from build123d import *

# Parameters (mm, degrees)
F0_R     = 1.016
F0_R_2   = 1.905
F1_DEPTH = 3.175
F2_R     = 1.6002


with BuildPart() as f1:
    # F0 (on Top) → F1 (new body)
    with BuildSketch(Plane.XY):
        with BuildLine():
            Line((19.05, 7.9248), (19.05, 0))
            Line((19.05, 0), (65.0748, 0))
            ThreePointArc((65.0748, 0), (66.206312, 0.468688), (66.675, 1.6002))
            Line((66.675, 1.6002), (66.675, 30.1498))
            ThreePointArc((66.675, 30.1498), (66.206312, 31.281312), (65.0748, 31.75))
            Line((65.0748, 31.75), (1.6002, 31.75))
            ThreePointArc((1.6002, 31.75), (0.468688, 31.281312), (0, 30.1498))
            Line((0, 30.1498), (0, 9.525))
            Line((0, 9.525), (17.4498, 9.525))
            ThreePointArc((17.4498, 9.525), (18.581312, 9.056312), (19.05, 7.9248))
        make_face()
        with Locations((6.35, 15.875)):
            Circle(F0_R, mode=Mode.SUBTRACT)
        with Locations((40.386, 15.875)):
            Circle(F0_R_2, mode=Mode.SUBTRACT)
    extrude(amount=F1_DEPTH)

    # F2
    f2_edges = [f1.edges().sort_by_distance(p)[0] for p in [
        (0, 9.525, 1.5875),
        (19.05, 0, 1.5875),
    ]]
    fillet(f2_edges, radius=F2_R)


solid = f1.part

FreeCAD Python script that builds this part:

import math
import FreeCAD as App
import Part
import Sketcher
Q = App.Units.Quantity


def edges_at(feature, points):
    """Names of the edges that pass closest to the given points."""
    edges = feature.Shape.Edges
    near = lambda p: min(range(len(edges)), key=lambda i: edges[i].distToShape(Part.Vertex(*p))[0])
    return sorted({f"Edge{near(p) + 1}" for p in points})

doc = App.newDocument("Part")
params = doc.addObject("Spreadsheet::Sheet", "Params")
for row, (alias, value) in enumerate([
    ("sketch1_diameter", "0.08 in"),
    ("sketch1_diameter2", "0.15 in"),
    ("sketch1_radius", "0.063 in"),
    ("sketch1_width", "1.812 in"),
    ("sketch1_width2", "2.499 in"),
    ("pad1_length", "0.125 in"),
    ("fillet_radius", "0.063 in"),
], start=1):
    params.set(f"A{row}", alias)
    params.set(f"B{row}", "=" + value)
    params.setAlias(f"B{row}", alias)

body = doc.addObject("PartDesign::Body", "Body")

# Sketch on XY plane
sketch1 = body.newObject("Sketcher::SketchObject", "Sketch")
sketch1.AttachmentSupport = (doc.getObject("XY_Plane"), [""])
sketch1.MapMode = "FlatFace"
sketch1.addGeometry([
    Part.LineSegment(App.Vector(19.1, 7.9, 0), App.Vector(19.1, 0, 0)),  # 0
    Part.LineSegment(App.Vector(19.1, 0, 0), App.Vector(65.1, 0, 0)),  # 1
    Part.ArcOfCircle(Part.Circle(App.Vector(65.1, 1.6, 0), App.Vector(0, 0, 1), 1.6), math.radians(-90), math.radians(0)),  # 2
    Part.LineSegment(App.Vector(66.7, 1.6, 0), App.Vector(66.7, 30.1, 0)),  # 3
    Part.ArcOfCircle(Part.Circle(App.Vector(65.1, 30.1, 0), App.Vector(0, 0, 1), 1.6), math.radians(0), math.radians(90)),  # 4
    Part.LineSegment(App.Vector(65.1, 31.8, 0), App.Vector(1.6, 31.8, 0)),  # 5
    Part.ArcOfCircle(Part.Circle(App.Vector(1.6, 30.1, 0), App.Vector(0, 0, 1), 1.6), math.radians(90), math.radians(180)),  # 6
    Part.LineSegment(App.Vector(0, 30.1, 0), App.Vector(0, 9.5, 0)),  # 7
    Part.LineSegment(App.Vector(0, 9.5, 0), App.Vector(17.4, 9.5, 0)),  # 8
    Part.ArcOfCircle(Part.Circle(App.Vector(17.4, 7.9, 0), App.Vector(0, 0, 1), 1.6), math.radians(0), math.radians(90)),  # 9
    Part.Circle(App.Vector(6.3, 15.9, 0), App.Vector(0, 0, 1), 1),  # 10
    Part.Circle(App.Vector(40.4, 15.9, 0), App.Vector(0, 0, 1), 1.9),  # 11
], False)
sketch1.addConstraint([
    Sketcher.Constraint("Coincident", 0, 2, 1, 1),
    Sketcher.Constraint("Tangent", 1, 2, 2, 1),
    Sketcher.Constraint("Tangent", 2, 2, 3, 1),
    Sketcher.Constraint("Tangent", 3, 2, 4, 1),
    Sketcher.Constraint("Tangent", 4, 2, 5, 1),
    Sketcher.Constraint("Tangent", 5, 2, 6, 1),
    Sketcher.Constraint("Tangent", 6, 2, 7, 1),
    Sketcher.Constraint("Coincident", 7, 2, 8, 1),
    Sketcher.Constraint("Tangent", 8, 2, 9, 2),
    Sketcher.Constraint("Tangent", 9, 1, 0, 1),
    Sketcher.Constraint("Vertical", 0),
    Sketcher.Constraint("Horizontal", 1),
    Sketcher.Constraint("Vertical", 3),
    Sketcher.Constraint("Horizontal", 5),
    Sketcher.Constraint("Vertical", 7),
    Sketcher.Constraint("Horizontal", 8),
    Sketcher.Constraint("Equal", 2, 4),
    Sketcher.Constraint("Equal", 4, 6),
    Sketcher.Constraint("Equal", 6, 9),
    Sketcher.Constraint("PointOnObject", 0, 2, -1),
    Sketcher.Constraint("PointOnObject", 6, 2, -2),
    Sketcher.Constraint("Horizontal", 10, 3, 11, 3),
    Sketcher.Constraint("Diameter", 10, Q("0.08 in")),
    Sketcher.Constraint("Diameter", 11, Q("0.15 in")),
    Sketcher.Constraint("Radius", 2, Q("0.063 in")),
    Sketcher.Constraint("DistanceX", 10, 3, 0, 2, Q("0.5 in")),
    Sketcher.Constraint("DistanceX", 1, 1, 1, 2, Q("1.812 in")),
    Sketcher.Constraint("DistanceX", 5, 2, 5, 1, Q("2.499 in")),
    Sketcher.Constraint("DistanceY", 0, 2, 0, 1, Q("0.312 in")),
    Sketcher.Constraint("DistanceY", 3, 1, 3, 2, Q("1.124 in")),
    Sketcher.Constraint("DistanceX", -1, 1, 11, 3, Q("1.59 in")),
    Sketcher.Constraint("DistanceY", 7, 2, 10, 3, Q("0.25 in")),
])
sketch1.setExpression("Constraints[22]", "Params.sketch1_diameter")
sketch1.setExpression("Constraints[23]", "Params.sketch1_diameter2")
sketch1.setExpression("Constraints[24]", "Params.sketch1_radius")
sketch1.setExpression("Constraints[26]", "Params.sketch1_width")
sketch1.setExpression("Constraints[27]", "Params.sketch1_width2")
pad1 = body.newObject("PartDesign::Pad", "Pad")
pad1.Profile = sketch1
pad1.setExpression("Length", "Params.pad1_length")
doc.recompute()

fillet = body.newObject("PartDesign::Fillet", "Fillet")
fillet.Base = (pad1, edges_at(pad1, [(0, 9.525, 1.587), (19.05, 0, 1.587)]))
fillet.setExpression("Radius", "Params.fillet_radius")

doc.recompute()
